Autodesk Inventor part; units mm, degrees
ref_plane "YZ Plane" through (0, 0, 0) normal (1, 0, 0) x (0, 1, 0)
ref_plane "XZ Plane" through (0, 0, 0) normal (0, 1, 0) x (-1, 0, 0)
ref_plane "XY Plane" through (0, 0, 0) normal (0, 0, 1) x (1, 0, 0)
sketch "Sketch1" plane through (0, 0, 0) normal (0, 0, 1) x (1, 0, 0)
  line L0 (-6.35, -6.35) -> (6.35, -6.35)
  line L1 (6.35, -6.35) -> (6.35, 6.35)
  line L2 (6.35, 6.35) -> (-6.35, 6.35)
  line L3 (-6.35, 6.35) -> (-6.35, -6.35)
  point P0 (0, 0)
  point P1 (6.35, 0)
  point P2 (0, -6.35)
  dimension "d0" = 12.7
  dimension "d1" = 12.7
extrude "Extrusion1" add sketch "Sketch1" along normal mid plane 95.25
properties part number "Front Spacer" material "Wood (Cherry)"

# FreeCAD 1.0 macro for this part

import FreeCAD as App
import Part
import Sketcher
Q = App.Units.Quantity


def add_polygon(sketch, points):
    """Adds a closed chain of lines whose ends are joined by coincident constraints."""
    first, n = sketch.GeometryCount, len(points)
    for a, b in zip(points, points[1:] + points[:1]):
        sketch.addGeometry(Part.LineSegment(App.Vector(*a, 0), App.Vector(*b, 0)), False)
    for i in range(n):
        sketch.addConstraint(Sketcher.Constraint("Coincident", first + i, 2, first + (i + 1) % n, 1))

doc = App.newDocument("Part")
body = doc.addObject("PartDesign::Body", "Body")

sketch1 = body.newObject("Sketcher::SketchObject", "Sketch")
sketch1.AttachmentSupport = (doc.getObject("XY_Plane"), [""])
sketch1.MapMode = "FlatFace"
add_polygon(sketch1, [(-6, 6), (-6, -6), (6, -6), (6, 6)])
sketch1.addConstraint(Sketcher.Constraint("Vertical", 0))
sketch1.addConstraint(Sketcher.Constraint("Horizontal", 1))
sketch1.addConstraint(Sketcher.Constraint("Vertical", 2))
sketch1.addConstraint(Sketcher.Constraint("Horizontal", 3))
sketch1.addConstraint(Sketcher.Constraint("Symmetric", 0, 2, 2, 2, -1, 1))
sketch1.addConstraint(Sketcher.Constraint("Equal", 3, 0))
sketch1.addConstraint(Sketcher.Constraint("DistanceX", 1, 1, 1, 2, Q("0.5 in")))
pad1 = body.newObject("PartDesign::Pad", "Pad")
pad1.Profile = sketch1
pad1.Length = Q("3.75 in")
pad1.Midplane = True

doc.recompute()
